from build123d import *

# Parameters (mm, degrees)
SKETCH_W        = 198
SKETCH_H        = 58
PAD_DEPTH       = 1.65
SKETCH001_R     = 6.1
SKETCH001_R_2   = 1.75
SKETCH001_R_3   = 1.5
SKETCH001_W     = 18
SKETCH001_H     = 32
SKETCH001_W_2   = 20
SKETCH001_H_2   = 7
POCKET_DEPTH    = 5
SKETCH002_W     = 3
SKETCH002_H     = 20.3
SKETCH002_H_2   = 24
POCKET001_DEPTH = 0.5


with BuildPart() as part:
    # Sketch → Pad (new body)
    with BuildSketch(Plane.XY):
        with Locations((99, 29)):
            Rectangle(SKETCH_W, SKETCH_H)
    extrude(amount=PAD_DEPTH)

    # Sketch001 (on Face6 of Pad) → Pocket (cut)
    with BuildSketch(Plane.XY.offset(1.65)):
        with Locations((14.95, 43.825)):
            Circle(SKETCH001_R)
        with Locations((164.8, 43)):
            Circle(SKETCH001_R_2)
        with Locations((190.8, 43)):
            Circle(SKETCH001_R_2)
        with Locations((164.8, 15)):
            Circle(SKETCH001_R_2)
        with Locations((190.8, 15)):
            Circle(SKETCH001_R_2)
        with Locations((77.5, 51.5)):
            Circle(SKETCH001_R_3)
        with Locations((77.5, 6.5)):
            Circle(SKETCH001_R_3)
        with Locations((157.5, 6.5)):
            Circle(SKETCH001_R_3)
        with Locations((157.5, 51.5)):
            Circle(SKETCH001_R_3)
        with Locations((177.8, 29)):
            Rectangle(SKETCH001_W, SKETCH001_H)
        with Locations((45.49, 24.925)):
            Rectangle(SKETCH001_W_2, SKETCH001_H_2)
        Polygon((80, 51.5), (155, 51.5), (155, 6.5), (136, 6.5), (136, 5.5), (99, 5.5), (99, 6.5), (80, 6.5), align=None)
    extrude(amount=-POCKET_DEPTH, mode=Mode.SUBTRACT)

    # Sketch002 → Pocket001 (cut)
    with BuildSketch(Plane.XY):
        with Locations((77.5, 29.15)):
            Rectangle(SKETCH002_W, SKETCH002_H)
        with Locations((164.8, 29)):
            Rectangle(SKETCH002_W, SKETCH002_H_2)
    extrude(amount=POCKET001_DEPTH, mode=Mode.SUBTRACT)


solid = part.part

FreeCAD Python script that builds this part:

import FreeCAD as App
import Part
import Sketcher
from FreeCAD import Vector
Q = App.Units.Quantity


def add_polygon(sketch, points):
    """Adds a closed chain of lines whose ends are joined by coincident constraints."""
    first, n = sketch.GeometryCount, len(points)
    for a, b in zip(points, points[1:] + points[:1]):
        sketch.addGeometry(Part.LineSegment(App.Vector(*a, 0), App.Vector(*b, 0)), False)
    for i in range(n):
        sketch.addConstraint(Sketcher.Constraint("Coincident", first + i, 2, first + (i + 1) % n, 1))

doc = App.newDocument("Part")
params = doc.addObject("Spreadsheet::Sheet", "Params")
for row, (alias, value) in enumerate([
    ("sketch1_width", "198 mm"),
    ("sketch1_height", "58 mm"),
    ("pad1_length", "1.65 mm"),
    ("sketch2_diameter", "3 mm"),
    ("sketch2_diameter2", "12.2 mm"),
    ("sketch2_diameter3", "3.5 mm"),
    ("sketch2_width", "18 mm"),
    ("sketch2_width2", "20 mm"),
    ("pocket1_length", "5 mm"),
    ("sketch3_width", "3 mm"),
    ("sketch3_height", "24 mm"),
    ("sketch3_height2", "20.3 mm"),
    ("pocket2_length", "0.5 mm"),
], start=1):
    params.set(f"A{row}", alias)
    params.set(f"B{row}", "=" + value)
    params.setAlias(f"B{row}", alias)

body = doc.addObject("PartDesign::Body", "Body")

sketch1 = body.newObject("Sketcher::SketchObject", "Sketch")
sketch1.AttachmentSupport = (doc.getObject("XY_Plane"), [""])
sketch1.MapMode = "FlatFace"
add_polygon(sketch1, [(0, 58), (0, 0), (198, 0), (198, 58)])
sketch1.addConstraint(Sketcher.Constraint("Vertical", 0))
sketch1.addConstraint(Sketcher.Constraint("Horizontal", 1))
sketch1.addConstraint(Sketcher.Constraint("Vertical", 2))
sketch1.addConstraint(Sketcher.Constraint("Horizontal", 3))
sketch1.addConstraint(Sketcher.Constraint("Coincident", 0, 2, -1, 1))
sketch1.addConstraint(Sketcher.Constraint("DistanceX", 1, 1, 1, 2, Q("198 mm")))
sketch1.addConstraint(Sketcher.Constraint("DistanceY", 0, 2, 0, 1, Q("58 mm")))
sketch1.setExpression("Constraints[9]", "Params.sketch1_width")
sketch1.setExpression("Constraints[10]", "Params.sketch1_height")
pad1 = body.newObject("PartDesign::Pad", "Pad")
pad1.Profile = sketch1
pad1.setExpression("Length", "Params.pad1_length")

sketch2 = body.newObject("Sketcher::SketchObject", "Sketch001")
sketch2.AttachmentSupport = (doc.getObject("XY_Plane"), [""])
sketch2.MapMode = "FlatFace"
sketch2.AttachmentOffset = App.Placement(Vector(0, 0, 1.65), App.Rotation())
sketch2.addGeometry(Part.Circle(Vector(14.95, 43.825, 0), Vector(0, 0, 1), 6.1), False)
sketch2.addGeometry(Part.Circle(Vector(164.8, 43, 0), Vector(0, 0, 1), 1.75), False)
sketch2.addGeometry(Part.Circle(Vector(190.8, 43, 0), Vector(0, 0, 1), 1.75), False)
sketch2.addGeometry(Part.Circle(Vector(164.8, 15, 0), Vector(0, 0, 1), 1.75), False)
sketch2.addGeometry(Part.Circle(Vector(190.8, 15, 0), Vector(0, 0, 1), 1.75), False)
sketch2.addGeometry(Part.Circle(Vector(77.5, 51.5, 0), Vector(0, 0, 1), 1.5), False)
sketch2.addGeometry(Part.Circle(Vector(77.5, 6.5, 0), Vector(0, 0, 1), 1.5), False)
sketch2.addGeometry(Part.Circle(Vector(157.5, 6.5, 0), Vector(0, 0, 1), 1.5), False)
sketch2.addGeometry(Part.Circle(Vector(157.5, 51.5, 0), Vector(0, 0, 1), 1.5), False)
add_polygon(sketch2, [(168.8, 45), (168.8, 13), (186.8, 13), (186.8, 45)])
add_polygon(sketch2, [(35.49, 28.425), (35.49, 21.425), (55.49, 21.425), (55.49, 28.425)])
add_polygon(sketch2, [(155, 51.5), (80, 51.5), (80, 6.5), (99, 6.5), (99, 5.5), (136, 5.5), (136, 6.5), (155, 6.5)])
sketch2.addConstraint(Sketcher.Constraint("Vertical", 9))
sketch2.addConstraint(Sketcher.Constraint("Horizontal", 10))
sketch2.addConstraint(Sketcher.Constraint("Vertical", 11))
sketch2.addConstraint(Sketcher.Constraint("Horizontal", 12))
sketch2.addConstraint(Sketcher.Constraint("Vertical", 13))
sketch2.addConstraint(Sketcher.Constraint("Horizontal", 14))
sketch2.addConstraint(Sketcher.Constraint("Vertical", 15))
sketch2.addConstraint(Sketcher.Constraint("Horizontal", 16))
sketch2.addConstraint(Sketcher.Constraint("Horizontal", 17))
sketch2.addConstraint(Sketcher.Constraint("Vertical", 18))
sketch2.addConstraint(Sketcher.Constraint("Horizontal", 19))
sketch2.addConstraint(Sketcher.Constraint("Vertical", 20))
sketch2.addConstraint(Sketcher.Constraint("Horizontal", 21))
sketch2.addConstraint(Sketcher.Constraint("Vertical", 22))
sketch2.addConstraint(Sketcher.Constraint("Horizontal", 23))
sketch2.addConstraint(Sketcher.Constraint("Vertical", 24))
sketch2.addConstraint(Sketcher.Constraint("Equal", 1, 2))
sketch2.addConstraint(Sketcher.Constraint("Equal", 2, 3))
sketch2.addConstraint(Sketcher.Constraint("Equal", 3, 4))
sketch2.addConstraint(Sketcher.Constraint("Equal", 5, 6))
sketch2.addConstraint(Sketcher.Constraint("Equal", 6, 7))
sketch2.addConstraint(Sketcher.Constraint("Equal", 7, 8))
sketch2.addConstraint(Sketcher.Constraint("Horizontal", 1, 3, 2, 3))
sketch2.addConstraint(Sketcher.Constraint("Horizontal", 3, 3, 4, 3))
sketch2.addConstraint(Sketcher.Constraint("Horizontal", 6, 3, 7, 3))
sketch2.addConstraint(Sketcher.Constraint("Horizontal", 5, 3, 8, 3))
sketch2.addConstraint(Sketcher.Constraint("Horizontal", 8, 3, 17, 2))
sketch2.addConstraint(Sketcher.Constraint("Horizontal", 7, 3, 18, 2))
sketch2.addConstraint(Sketcher.Constraint("Horizontal", 19, 2, 22, 2))
sketch2.addConstraint(Sketcher.Constraint("Vertical", 1, 3, 3, 3))
sketch2.addConstraint(Sketcher.Constraint("Vertical", 2, 3, 4, 3))
sketch2.addConstraint(Sketcher.Constraint("Vertical", 5, 3, 6, 3))
sketch2.addConstraint(Sketcher.Constraint("Vertical", 7, 3, 8, 3))
sketch2.addConstraint(Sketcher.Constraint("Equal", 19, 23))
sketch2.addConstraint(Sketcher.Constraint("Diameter", 5, Q("3 mm")))
sketch2.addConstraint(Sketcher.Constraint("Diameter", 0, Q("12.2 mm")))
sketch2.addConstraint(Sketcher.Constraint("Diameter", 1, Q("3.5 mm")))
sketch2.addConstraint(Sketcher.Constraint("DistanceX", 10, 1, 10, 2, Q("18 mm")))
sketch2.addConstraint(Sketcher.Constraint("DistanceX", 14, 1, 14, 2, Q("20 mm")))
sketch2.addConstraint(Sketcher.Constraint("DistanceX", 17, 2, 17, 1, Q("75 mm")))
sketch2.addConstraint(Sketcher.Constraint("DistanceX", 19, 1, 19, 2, Q("19 mm")))
sketch2.addConstraint(Sketcher.Constraint("DistanceY", 9, 2, 9, 1, Q("32 mm")))
sketch2.addConstraint(Sketcher.Constraint("DistanceY", 13, 2, 13, 1, Q("7 mm")))
sketch2.addConstraint(Sketcher.Constraint("DistanceY", 18, 2, 18, 1, Q("45 mm")))
sketch2.addConstraint(Sketcher.Constraint("DistanceY", 20, 2, 20, 1, Q("1 mm")))
sketch2.addConstraint(Sketcher.Constraint("DistanceY", -1, 1, 1, 3, Q("43 mm")))
sketch2.addConstraint(Sketcher.Constraint("DistanceY", -1, 1, 3, 3, Q("15 mm")))
sketch2.addConstraint(Sketcher.Constraint("DistanceY", -1, 1, 9, 2, Q("13 mm")))
sketch2.addConstraint(Sketcher.Constraint("DistanceX", -1, 1, 17, 2, Q("80 mm")))
sketch2.addConstraint(Sketcher.Constraint("DistanceX", 1, 3, 2, 3, Q("26 mm")))
sketch2.addConstraint(Sketcher.Constraint("DistanceX", 6, 3, 7, 3, Q("80 mm")))
sketch2.addConstraint(Sketcher.Constraint("DistanceX", 3, 3, 9, 2, Q("4 mm")))
sketch2.addConstraint(Sketcher.Constraint("DistanceX", -1, 1, 1, 3, Q("164.8 mm")))
sketch2.addConstraint(Sketcher.Constraint("DistanceX", -1, 1, 5, 3, Q("77.5 mm")))
sketch2.addConstraint(Sketcher.Constraint("DistanceY", -1, 1, 5, 3, Q("51.5 mm")))
sketch2.addConstraint(Sketcher.Constraint("DistanceY", 13, 2, 0, 3, Q("22.4 mm")))
sketch2.addConstraint(Sketcher.Constraint("DistanceX", -1, 1, 0, 3, Q("14.95 mm")))
sketch2.addConstraint(Sketcher.Constraint("DistanceX", -1, 1, 13, 2, Q("35.49 mm")))
sketch2.addConstraint(Sketcher.Constraint("DistanceY", -1, 1, 0, 3, Q("43.825 mm")))
sketch2.setExpression("Constraints[50]", "Params.sketch2_diameter")
sketch2.setExpression("Constraints[51]", "Params.sketch2_diameter2")
sketch2.setExpression("Constraints[52]", "Params.sketch2_diameter3")
sketch2.setExpression("Constraints[53]", "Params.sketch2_width")
sketch2.setExpression("Constraints[54]", "Params.sketch2_width2")
pocket1 = body.newObject("PartDesign::Pocket", "Pocket")
pocket1.Profile = sketch2
pocket1.setExpression("Length", "Params.pocket1_length")

sketch3 = body.newObject("Sketcher::SketchObject", "Sketch002")
sketch3.AttachmentSupport = (doc.getObject("XY_Plane"), [""])
sketch3.MapMode = "FlatFace"
add_polygon(sketch3, [(76, 39.3), (76, 19), (79, 19), (79, 39.3)])
add_polygon(sketch3, [(163.3, 41), (163.3, 17), (166.3, 17), (166.3, 41)])
sketch3.addConstraint(Sketcher.Constraint("Vertical", 0))
sketch3.addConstraint(Sketcher.Constraint("Horizontal", 1))
sketch3.addConstraint(Sketcher.Constraint("Vertical", 2))
sketch3.addConstraint(Sketcher.Constraint("Horizontal", 3))
sketch3.addConstraint(Sketcher.Constraint("Vertical", 4))
sketch3.addConstraint(Sketcher.Constraint("Horizontal", 5))
sketch3.addConstraint(Sketcher.Constraint("Vertical", 6))
sketch3.addConstraint(Sketcher.Constraint("Horizontal", 7))
sketch3.addConstraint(Sketcher.Constraint("Equal", 3, 5))
sketch3.addConstraint(Sketcher.Constraint("DistanceX", 1, 1, 1, 2, Q("3 mm")))
sketch3.addConstraint(Sketcher.Constraint("DistanceY", 4, 2, 4, 1, Q("24 mm")))
sketch3.addConstraint(Sketcher.Constraint("DistanceY", 0, 2, 0, 1, Q("20.3 mm")))
sketch3.addConstraint(Sketcher.Constraint("DistanceX", -1, 1, 0, 2, Q("76 mm")))
sketch3.addConstraint(Sketcher.Constraint("DistanceY", -1, 1, 0, 2, Q("19 mm")))
sketch3.addConstraint(Sketcher.Constraint("DistanceY", -1, 1, 4, 2, Q("17 mm")))
sketch3.addConstraint(Sketcher.Constraint("DistanceX", -1, 1, 4, 2, Q("163.3 mm")))
sketch3.setExpression("Constraints[17]", "Params.sketch3_width")
sketch3.setExpression("Constraints[18]", "Params.sketch3_height")
sketch3.setExpression("Constraints[19]", "Params.sketch3_height2")
pocket2 = body.newObject("PartDesign::Pocket", "Pocket001")
pocket2.Profile = sketch3
pocket2.setExpression("Length", "Params.pocket2_length")
pocket2.Reversed = True

doc.recompute()
